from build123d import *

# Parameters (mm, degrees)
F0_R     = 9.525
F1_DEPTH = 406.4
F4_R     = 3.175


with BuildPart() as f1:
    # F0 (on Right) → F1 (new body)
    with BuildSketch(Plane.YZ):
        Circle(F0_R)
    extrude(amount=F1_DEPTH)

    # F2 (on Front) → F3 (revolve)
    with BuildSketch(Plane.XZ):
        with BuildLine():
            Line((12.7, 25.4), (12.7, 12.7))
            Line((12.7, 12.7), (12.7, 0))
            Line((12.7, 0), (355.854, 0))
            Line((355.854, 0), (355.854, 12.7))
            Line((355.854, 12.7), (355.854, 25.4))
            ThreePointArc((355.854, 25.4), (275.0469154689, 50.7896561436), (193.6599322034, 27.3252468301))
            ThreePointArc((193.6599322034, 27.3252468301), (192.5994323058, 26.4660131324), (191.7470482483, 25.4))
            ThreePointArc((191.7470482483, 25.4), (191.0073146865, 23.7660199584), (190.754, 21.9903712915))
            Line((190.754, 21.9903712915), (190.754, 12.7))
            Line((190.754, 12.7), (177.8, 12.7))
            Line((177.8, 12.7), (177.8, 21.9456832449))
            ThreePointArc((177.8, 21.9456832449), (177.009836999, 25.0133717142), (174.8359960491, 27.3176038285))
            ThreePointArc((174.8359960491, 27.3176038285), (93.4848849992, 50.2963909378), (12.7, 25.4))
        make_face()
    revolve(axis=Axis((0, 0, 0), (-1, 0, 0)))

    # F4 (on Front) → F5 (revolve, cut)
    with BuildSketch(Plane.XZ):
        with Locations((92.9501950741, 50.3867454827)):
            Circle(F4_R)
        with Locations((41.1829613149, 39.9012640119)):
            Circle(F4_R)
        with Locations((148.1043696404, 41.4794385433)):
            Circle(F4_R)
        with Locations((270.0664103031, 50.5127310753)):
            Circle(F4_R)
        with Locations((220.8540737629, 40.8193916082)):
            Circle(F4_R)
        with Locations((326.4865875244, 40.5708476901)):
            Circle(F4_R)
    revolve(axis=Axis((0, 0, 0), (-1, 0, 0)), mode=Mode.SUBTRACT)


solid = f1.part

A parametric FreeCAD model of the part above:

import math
import FreeCAD as App
import Part
import Sketcher

V = App.Vector
Q = App.Units.Quantity

doc = App.newDocument("Part")
params = doc.addObject("Spreadsheet::Sheet", "Params")
for row, (alias, value) in enumerate([
    ("sketch1_diameter", "0.75 in"),
    ("pad1_length", "16 in"),
    ("sketch2_height", "1 in"),
    ("sketch2_radius", "0.25 in"),
    ("sketch2_radius2", "5.78125 in"),
    ("sketch2_width", "13.51 in"),
    ("sketch2_width2", "0.51 in"),
    ("revolution_angle", "360 deg"),
    ("sketch3_diameter", "0.25 in"),
    ("groove_angle", "360 deg"),
], start=1):
    params.set(f"A{row}", alias)
    params.set(f"B{row}", "=" + value)
    params.setAlias(f"B{row}", alias)

body = doc.addObject("PartDesign::Body", "Body")

sketch1 = body.newObject("Sketcher::SketchObject", "Sketch")
sketch1.AttachmentSupport = (doc.getObject("YZ_Plane"), [""])
sketch1.MapMode = "FlatFace"
sketch1.addGeometry(Part.Circle(V(0, 0, 0), V(0, 0, 1), 10), False)
sketch1.addConstraint(Sketcher.Constraint("Coincident", 0, 3, -1, 1))
sketch1.addConstraint(Sketcher.Constraint("Diameter", 0, Q("0.75 in")))
sketch1.setExpression("Constraints[1]", "Params.sketch1_diameter")
pad1 = body.newObject("PartDesign::Pad", "Pad")
pad1.Profile = sketch1
pad1.setExpression("Length", "Params.pad1_length")

sketch2 = body.newObject("Sketcher::SketchObject", "Sketch001")
sketch2.AttachmentSupport = (doc.getObject("XZ_Plane"), [""])
sketch2.MapMode = "FlatFace"
sketch2.addGeometry(Part.LineSegment(V(12.7, 25.4, 0), V(12.7, 0, 0)), False)
sketch2.addGeometry(Part.LineSegment(V(12.7, 0, 0), V(355.9, 0, 0)), False)
sketch2.addGeometry(Part.LineSegment(V(355.9, 0, 0), V(355.9, 25.4, 0)), False)
sketch2.addGeometry(Part.ArcOfCircle(Part.Circle(V(273.3, -96, 0), V(0, 0, 1), 146.8), math.radians(56), math.radians(123)), False)
sketch2.addGeometry(Part.ArcOfCircle(Part.Circle(V(197.1, 22, 0), V(0, 0, 1), 6.4), math.radians(123), math.radians(148)), False)
sketch2.addGeometry(Part.ArcOfCircle(Part.Circle(V(197.1, 22, 0), V(0, 0, 1), 6.3), math.radians(148), math.radians(180)), False)
sketch2.addGeometry(Part.LineSegment(V(190.8, 22, 0), V(190.8, 12.7, 0)), False)
sketch2.addGeometry(Part.LineSegment(V(190.8, 12.7, 0), V(177.8, 12.7, 0)), False)
sketch2.addGeometry(Part.LineSegment(V(177.8, 12.7, 0), V(177.8, 21.9, 0)), False)
sketch2.addGeometry(Part.ArcOfCircle(Part.Circle(V(171.4, 21.9, 0), V(0, 0, 1), 6.3), math.radians(0), math.radians(58)), False)
sketch2.addGeometry(Part.ArcOfCircle(Part.Circle(V(95.2, -98.9, 0), V(0, 0, 1), 149.3), math.radians(58), math.radians(124)), False)
sketch2.addConstraint(Sketcher.Constraint("Coincident", 0, 2, 1, 1))
sketch2.addConstraint(Sketcher.Constraint("Coincident", 1, 2, 2, 1))
sketch2.addConstraint(Sketcher.Constraint("Coincident", 2, 2, 3, 1))
sketch2.addConstraint(Sketcher.Constraint("Tangent", 3, 2, 4, 1))
sketch2.addConstraint(Sketcher.Constraint("Tangent", 4, 2, 5, 1))
sketch2.addConstraint(Sketcher.Constraint("Tangent", 5, 2, 6, 1))
sketch2.addConstraint(Sketcher.Constraint("Coincident", 6, 2, 7, 1))
sketch2.addConstraint(Sketcher.Constraint("Coincident", 7, 2, 8, 1))
sketch2.addConstraint(Sketcher.Constraint("Tangent", 8, 2, 9, 1))
sketch2.addConstraint(Sketcher.Constraint("Tangent", 9, 2, 10, 1))
sketch2.addConstraint(Sketcher.Constraint("Coincident", 10, 2, 0, 1))
sketch2.addConstraint(Sketcher.Constraint("Vertical", 0))
sketch2.addConstraint(Sketcher.Constraint("Horizontal", 1))
sketch2.addConstraint(Sketcher.Constraint("Vertical", 2))
sketch2.addConstraint(Sketcher.Constraint("Vertical", 6))
sketch2.addConstraint(Sketcher.Constraint("Horizontal", 7))
sketch2.addConstraint(Sketcher.Constraint("Vertical", 8))
sketch2.addConstraint(Sketcher.Constraint("Equal", 4, 5))
sketch2.addConstraint(Sketcher.Constraint("Equal", 5, 9))
sketch2.addConstraint(Sketcher.Constraint("PointOnObject", 0, 2, -1))
sketch2.addConstraint(Sketcher.Constraint("Horizontal", 2, 2, 4, 2))
sketch2.addConstraint(Sketcher.Constraint("Horizontal", 4, 2, 10, 2))
sketch2.addConstraint(Sketcher.Constraint("DistanceY", 0, 2, 0, 1, Q("1 in")))
sketch2.addConstraint(Sketcher.Constraint("Radius", 4, Q("0.25 in")))
sketch2.addConstraint(Sketcher.Constraint("DistanceX", -1, 1, 7, 2, Q("7 in")))
sketch2.addConstraint(Sketcher.Constraint("Radius", 3, Q("5.78125 in")))
sketch2.addConstraint(Sketcher.Constraint("DistanceX", 4, 3, 3, 3, Q("3 in")))
sketch2.addConstraint(Sketcher.Constraint("DistanceX", 10, 3, 9, 3, Q("3 in")))
sketch2.addConstraint(Sketcher.Constraint("DistanceX", 1, 1, 1, 2, Q("13.51 in")))
sketch2.addConstraint(Sketcher.Constraint("DistanceX", 7, 2, 7, 1, Q("0.51 in")))
sketch2.addConstraint(Sketcher.Constraint("DistanceX", -1, 1, 0, 2, Q("0.5 in")))
sketch2.addConstraint(Sketcher.Constraint("DistanceY", -1, 1, 6, 2, Q("0.5 in")))
sketch2.addConstraint(Sketcher.Constraint("Radius", 10, Q("149.253297 mm")))
sketch2.setExpression("Constraints[22]", "Params.sketch2_height")
sketch2.setExpression("Constraints[23]", "Params.sketch2_radius")
sketch2.setExpression("Constraints[25]", "Params.sketch2_radius2")
sketch2.setExpression("Constraints[28]", "Params.sketch2_width")
sketch2.setExpression("Constraints[29]", "Params.sketch2_width2")
revolution = body.newObject("PartDesign::Revolution", "Revolution")
revolution.Profile = sketch2
revolution.ReferenceAxis = (sketch2, ["H_Axis"])
revolution.setExpression("Angle", "Params.revolution_angle")

sketch3 = body.newObject("Sketcher::SketchObject", "Sketch002")
sketch3.AttachmentSupport = (doc.getObject("XZ_Plane"), [""])
sketch3.MapMode = "FlatFace"
sketch3.addGeometry(Part.Circle(V(93, 50.4, 0), V(0, 0, 1), 3.2), False)
sketch3.addGeometry(Part.Circle(V(41.2, 39.9, 0), V(0, 0, 1), 3.2), False)
sketch3.addGeometry(Part.Circle(V(148.1, 41.5, 0), V(0, 0, 1), 3.2), False)
sketch3.addGeometry(Part.Circle(V(270.1, 50.5, 0), V(0, 0, 1), 3.2), False)
sketch3.addGeometry(Part.Circle(V(220.9, 40.8, 0), V(0, 0, 1), 3.2), False)
sketch3.addGeometry(Part.Circle(V(326.5, 40.6, 0), V(0, 0, 1), 3.2), False)
sketch3.addConstraint(Sketcher.Constraint("Equal", 0, 1))
sketch3.addConstraint(Sketcher.Constraint("Equal", 1, 2))
sketch3.addConstraint(Sketcher.Constraint("Equal", 2, 3))
sketch3.addConstraint(Sketcher.Constraint("Equal", 3, 4))
sketch3.addConstraint(Sketcher.Constraint("Equal", 4, 5))
sketch3.addConstraint(Sketcher.Constraint("Diameter", 0, Q("0.25 in")))
sketch3.addConstraint(Sketcher.Constraint("DistanceX", -1, 1, 1, 3, Q("41.182961 mm")))
sketch3.addConstraint(Sketcher.Constraint("DistanceX", -1, 1, 2, 3, Q("148.10437 mm")))
sketch3.addConstraint(Sketcher.Constraint("DistanceY", -1, 1, 2, 3, Q("41.479439 mm")))
sketch3.addConstraint(Sketcher.Constraint("DistanceX", -1, 1, 3, 3, Q("270.06641 mm")))
sketch3.addConstraint(Sketcher.Constraint("DistanceY", -1, 1, 3, 3, Q("50.512731 mm")))
sketch3.addConstraint(Sketcher.Constraint("DistanceY", -1, 1, 4, 3, Q("40.819392 mm")))
sketch3.addConstraint(Sketcher.Constraint("DistanceY", 1, 3, 0, 3, Q("10.485481 mm")))
sketch3.addConstraint(Sketcher.Constraint("DistanceX", 0, 3, 4, 3, Q("127.903879 mm")))
sketch3.addConstraint(Sketcher.Constraint("DistanceY", 5, 3, 2, 3, Q("0.908591 mm")))
sketch3.addConstraint(Sketcher.Constraint("DistanceX", -1, 1, 0, 3, Q("92.950195 mm")))
sketch3.addConstraint(Sketcher.Constraint("DistanceY", -1, 1, 0, 3, Q("50.386745 mm")))
sketch3.addConstraint(Sketcher.Constraint("DistanceX", -1, 1, 5, 3, Q("326.486588 mm")))
sketch3.setExpression("Constraints[5]", "Params.sketch3_diameter")
groove = body.newObject("PartDesign::Groove", "Groove")
groove.Profile = sketch3
groove.ReferenceAxis = (sketch3, ["H_Axis"])
groove.setExpression("Angle", "Params.groove_angle")

doc.recompute()
